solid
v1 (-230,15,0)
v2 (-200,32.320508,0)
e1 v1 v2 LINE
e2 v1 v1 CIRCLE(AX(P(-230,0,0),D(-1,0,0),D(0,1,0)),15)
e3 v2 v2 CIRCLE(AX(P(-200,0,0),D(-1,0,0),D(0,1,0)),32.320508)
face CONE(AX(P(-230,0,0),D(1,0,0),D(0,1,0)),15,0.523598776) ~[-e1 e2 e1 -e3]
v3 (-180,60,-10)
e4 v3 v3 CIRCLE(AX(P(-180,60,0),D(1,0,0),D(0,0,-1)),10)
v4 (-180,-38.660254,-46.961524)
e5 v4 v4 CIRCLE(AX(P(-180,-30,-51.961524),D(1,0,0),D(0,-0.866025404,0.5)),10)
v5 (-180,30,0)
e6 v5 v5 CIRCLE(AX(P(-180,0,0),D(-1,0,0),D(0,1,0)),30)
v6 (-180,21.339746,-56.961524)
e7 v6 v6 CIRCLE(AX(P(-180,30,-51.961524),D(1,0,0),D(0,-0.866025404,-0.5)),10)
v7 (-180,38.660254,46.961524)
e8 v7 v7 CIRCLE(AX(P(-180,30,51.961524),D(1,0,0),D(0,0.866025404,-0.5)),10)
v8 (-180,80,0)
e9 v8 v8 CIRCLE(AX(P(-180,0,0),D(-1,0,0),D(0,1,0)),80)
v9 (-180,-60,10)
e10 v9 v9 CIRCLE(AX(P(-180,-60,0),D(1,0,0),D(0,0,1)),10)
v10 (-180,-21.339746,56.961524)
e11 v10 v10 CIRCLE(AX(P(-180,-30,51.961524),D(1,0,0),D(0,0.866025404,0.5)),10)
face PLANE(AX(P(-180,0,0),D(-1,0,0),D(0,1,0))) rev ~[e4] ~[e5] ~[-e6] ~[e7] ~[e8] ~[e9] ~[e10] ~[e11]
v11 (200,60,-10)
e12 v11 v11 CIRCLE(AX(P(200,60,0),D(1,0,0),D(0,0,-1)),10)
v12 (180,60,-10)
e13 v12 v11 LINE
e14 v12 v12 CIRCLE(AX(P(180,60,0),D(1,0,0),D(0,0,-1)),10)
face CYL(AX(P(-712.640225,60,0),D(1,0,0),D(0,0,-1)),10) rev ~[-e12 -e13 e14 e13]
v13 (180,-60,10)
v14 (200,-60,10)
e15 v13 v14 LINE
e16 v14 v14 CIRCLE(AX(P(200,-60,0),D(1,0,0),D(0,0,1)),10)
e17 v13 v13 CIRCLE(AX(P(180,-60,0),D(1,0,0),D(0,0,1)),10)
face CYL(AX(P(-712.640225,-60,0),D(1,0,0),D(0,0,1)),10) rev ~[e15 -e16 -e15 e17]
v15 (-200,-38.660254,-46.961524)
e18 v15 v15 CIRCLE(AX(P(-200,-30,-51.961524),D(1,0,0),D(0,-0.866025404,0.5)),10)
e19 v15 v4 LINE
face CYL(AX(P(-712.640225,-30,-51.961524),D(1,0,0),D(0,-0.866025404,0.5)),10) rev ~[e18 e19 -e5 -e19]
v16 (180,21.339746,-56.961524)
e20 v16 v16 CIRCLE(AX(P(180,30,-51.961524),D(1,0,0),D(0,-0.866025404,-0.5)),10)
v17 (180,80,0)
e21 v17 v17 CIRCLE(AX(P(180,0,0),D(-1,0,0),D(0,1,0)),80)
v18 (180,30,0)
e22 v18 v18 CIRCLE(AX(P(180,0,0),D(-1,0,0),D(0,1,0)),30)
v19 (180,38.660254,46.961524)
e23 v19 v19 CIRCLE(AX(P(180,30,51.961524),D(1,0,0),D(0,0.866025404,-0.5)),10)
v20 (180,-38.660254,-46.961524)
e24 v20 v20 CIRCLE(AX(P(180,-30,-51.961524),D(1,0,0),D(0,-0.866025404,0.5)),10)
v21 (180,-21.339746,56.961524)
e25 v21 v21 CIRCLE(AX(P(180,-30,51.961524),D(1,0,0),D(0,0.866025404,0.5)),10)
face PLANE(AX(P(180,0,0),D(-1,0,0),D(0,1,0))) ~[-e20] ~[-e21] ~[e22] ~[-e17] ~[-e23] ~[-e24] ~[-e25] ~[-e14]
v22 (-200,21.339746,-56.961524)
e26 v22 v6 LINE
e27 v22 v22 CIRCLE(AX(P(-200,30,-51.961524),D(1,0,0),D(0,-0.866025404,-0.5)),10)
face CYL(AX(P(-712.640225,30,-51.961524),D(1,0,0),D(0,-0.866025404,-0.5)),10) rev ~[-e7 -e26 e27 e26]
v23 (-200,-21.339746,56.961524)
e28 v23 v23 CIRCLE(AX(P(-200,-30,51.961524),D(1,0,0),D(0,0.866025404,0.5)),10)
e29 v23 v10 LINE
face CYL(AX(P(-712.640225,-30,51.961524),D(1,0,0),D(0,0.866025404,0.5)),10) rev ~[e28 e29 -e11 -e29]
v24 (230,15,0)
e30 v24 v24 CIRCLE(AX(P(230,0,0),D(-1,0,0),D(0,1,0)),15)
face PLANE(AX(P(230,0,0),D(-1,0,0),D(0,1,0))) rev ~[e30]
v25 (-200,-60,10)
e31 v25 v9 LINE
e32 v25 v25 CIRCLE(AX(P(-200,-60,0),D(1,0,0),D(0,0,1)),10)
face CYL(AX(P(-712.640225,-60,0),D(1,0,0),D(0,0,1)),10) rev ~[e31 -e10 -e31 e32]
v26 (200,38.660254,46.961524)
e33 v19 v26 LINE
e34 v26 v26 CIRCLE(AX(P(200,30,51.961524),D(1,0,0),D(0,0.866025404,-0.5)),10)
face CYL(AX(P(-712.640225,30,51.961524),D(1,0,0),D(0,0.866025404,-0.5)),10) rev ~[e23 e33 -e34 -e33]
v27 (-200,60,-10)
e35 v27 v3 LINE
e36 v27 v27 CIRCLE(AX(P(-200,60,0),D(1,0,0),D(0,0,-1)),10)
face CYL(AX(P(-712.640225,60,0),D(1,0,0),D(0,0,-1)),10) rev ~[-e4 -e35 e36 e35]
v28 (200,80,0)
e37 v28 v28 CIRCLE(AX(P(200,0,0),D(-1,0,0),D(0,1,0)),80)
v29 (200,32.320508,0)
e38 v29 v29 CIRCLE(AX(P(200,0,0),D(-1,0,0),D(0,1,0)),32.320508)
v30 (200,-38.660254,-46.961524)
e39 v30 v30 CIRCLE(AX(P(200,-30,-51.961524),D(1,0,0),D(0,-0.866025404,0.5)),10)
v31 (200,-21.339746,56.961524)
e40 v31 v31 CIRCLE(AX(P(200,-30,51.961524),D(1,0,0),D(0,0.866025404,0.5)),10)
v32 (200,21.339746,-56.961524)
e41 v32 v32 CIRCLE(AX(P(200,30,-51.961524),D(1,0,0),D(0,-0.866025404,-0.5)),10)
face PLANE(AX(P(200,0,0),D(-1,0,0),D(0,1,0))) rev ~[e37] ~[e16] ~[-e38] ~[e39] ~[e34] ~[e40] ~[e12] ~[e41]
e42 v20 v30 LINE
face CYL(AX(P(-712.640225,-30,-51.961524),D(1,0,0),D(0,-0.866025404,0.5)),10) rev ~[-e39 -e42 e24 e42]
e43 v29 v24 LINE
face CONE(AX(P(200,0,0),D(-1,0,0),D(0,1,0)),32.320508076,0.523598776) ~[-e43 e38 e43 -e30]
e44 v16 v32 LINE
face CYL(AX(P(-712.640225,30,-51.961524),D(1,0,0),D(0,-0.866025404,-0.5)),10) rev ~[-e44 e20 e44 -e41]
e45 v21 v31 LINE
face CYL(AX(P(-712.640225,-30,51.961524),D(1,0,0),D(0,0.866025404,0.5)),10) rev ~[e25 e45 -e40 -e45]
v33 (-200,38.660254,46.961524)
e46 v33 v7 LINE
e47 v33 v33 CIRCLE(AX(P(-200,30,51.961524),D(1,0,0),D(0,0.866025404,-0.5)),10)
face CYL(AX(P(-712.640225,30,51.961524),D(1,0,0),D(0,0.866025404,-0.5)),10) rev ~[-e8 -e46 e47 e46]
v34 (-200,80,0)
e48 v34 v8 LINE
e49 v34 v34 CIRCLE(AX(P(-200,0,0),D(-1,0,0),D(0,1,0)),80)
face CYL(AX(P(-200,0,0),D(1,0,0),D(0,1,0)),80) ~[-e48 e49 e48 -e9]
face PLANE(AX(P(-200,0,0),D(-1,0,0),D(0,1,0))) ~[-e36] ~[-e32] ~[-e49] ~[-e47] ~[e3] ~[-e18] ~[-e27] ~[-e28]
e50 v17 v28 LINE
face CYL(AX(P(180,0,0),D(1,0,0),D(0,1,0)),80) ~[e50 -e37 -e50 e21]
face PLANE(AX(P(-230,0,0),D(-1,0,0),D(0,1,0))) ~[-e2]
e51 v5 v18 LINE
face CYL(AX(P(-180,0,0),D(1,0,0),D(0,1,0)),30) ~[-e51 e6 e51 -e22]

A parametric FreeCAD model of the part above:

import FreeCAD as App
import Part
import Sketcher

V = App.Vector
Q = App.Units.Quantity


def add_polygon(sketch, points):
    """Adds a closed chain of lines whose ends are joined by coincident constraints."""
    first, n = sketch.GeometryCount, len(points)
    for a, b in zip(points, points[1:] + points[:1]):
        sketch.addGeometry(Part.LineSegment(App.Vector(*a, 0), App.Vector(*b, 0)), False)
    for i in range(n):
        sketch.addConstraint(Sketcher.Constraint("Coincident", first + i, 2, first + (i + 1) % n, 1))

doc = App.newDocument("Part")
body = doc.addObject("PartDesign::Body", "Body")

# Sketch on XY plane
sketch1 = body.newObject("Sketcher::SketchObject", "Sketch")
sketch1.AttachmentSupport = (doc.getObject("XY_Plane"), [""])
sketch1.MapMode = "FlatFace"
add_polygon(sketch1, [(-230, 15), (-230, 0), (230, 0), (230, 15), (200, 32), (200, 80), (180, 80), (180, 30), (-180, 30), (-180, 80), (-200, 80), (-200, 32)])  # lines 0-11
sketch1.addConstraint([
    Sketcher.Constraint("Vertical", 0),
    Sketcher.Constraint("Horizontal", 1),
    Sketcher.Constraint("Vertical", 2),
    Sketcher.Constraint("Vertical", 4),
    Sketcher.Constraint("Horizontal", 5),
    Sketcher.Constraint("Vertical", 6),
    Sketcher.Constraint("Horizontal", 7),
    Sketcher.Constraint("Vertical", 8),
    Sketcher.Constraint("Horizontal", 9),
    Sketcher.Constraint("Vertical", 10),
    Sketcher.Constraint("Symmetric", 0, 2, 1, 2, -1, 1),
    Sketcher.Constraint("Symmetric", 5, 2, 8, 2, -2),
    Sketcher.Constraint("Symmetric", 3, 2, 10, 2, -2),
    Sketcher.Constraint("Horizontal", 2, 2, 11, 2),
    Sketcher.Constraint("DistanceX", 1, 1, 1, 2, 460.0),
    Sketcher.Constraint("DistanceX", 5, 2, 5, 1, 20.0),
    Sketcher.Constraint("DistanceX", 7, 2, 7, 1, 360.0),
    Sketcher.Constraint("DistanceY", 0, 2, 0, 1, 15.0),
    Sketcher.Constraint("DistanceY", 6, 2, 6, 1, 50.0),
    Sketcher.Constraint("Angle", 3, Q("150 deg")),
    Sketcher.Constraint("DistanceY", -1, 1, 4, 2, 80.0),
])
revolution = body.newObject("PartDesign::Revolution", "Revolution")
revolution.Profile = sketch1
revolution.ReferenceAxis = (sketch1, ["H_Axis"])
revolution.Angle = 360

# Sketch on YZ plane
sketch2 = body.newObject("Sketcher::SketchObject", "Sketch001")
sketch2.AttachmentSupport = (doc.getObject("YZ_Plane"), [""])
sketch2.MapMode = "FlatFace"
sketch2.AttachmentOffset = App.Placement(V(0, 0, -200), App.Rotation())
sketch2.addGeometry(Part.Circle(V(60, 0, 0), V(0, 0, 1), 10), False)
sketch2.addConstraint([
    Sketcher.Constraint("PointOnObject", 0, 3, -1),
    Sketcher.Constraint("Diameter", 0, 20.0),
    Sketcher.Constraint("DistanceX", -1, 1, 0, 3, 60.0),
])
doc.recompute()
hole = body.newObject("PartDesign::Hole", "Hole")
hole.Profile = sketch2
hole.ThreadType = "None"
hole.Diameter = 20
hole.DepthType = "ThroughAll"
hole.Reversed = True
doc.recompute()

polarpattern = body.newObject("PartDesign::PolarPattern", "PolarPattern")
polarpattern.Originals = [hole]
polarpattern.Axis = (doc.getObject("X_Axis"), [""])
polarpattern.Angle = 360
polarpattern.Occurrences = 6
body.Tip = polarpattern

doc.recompute()
